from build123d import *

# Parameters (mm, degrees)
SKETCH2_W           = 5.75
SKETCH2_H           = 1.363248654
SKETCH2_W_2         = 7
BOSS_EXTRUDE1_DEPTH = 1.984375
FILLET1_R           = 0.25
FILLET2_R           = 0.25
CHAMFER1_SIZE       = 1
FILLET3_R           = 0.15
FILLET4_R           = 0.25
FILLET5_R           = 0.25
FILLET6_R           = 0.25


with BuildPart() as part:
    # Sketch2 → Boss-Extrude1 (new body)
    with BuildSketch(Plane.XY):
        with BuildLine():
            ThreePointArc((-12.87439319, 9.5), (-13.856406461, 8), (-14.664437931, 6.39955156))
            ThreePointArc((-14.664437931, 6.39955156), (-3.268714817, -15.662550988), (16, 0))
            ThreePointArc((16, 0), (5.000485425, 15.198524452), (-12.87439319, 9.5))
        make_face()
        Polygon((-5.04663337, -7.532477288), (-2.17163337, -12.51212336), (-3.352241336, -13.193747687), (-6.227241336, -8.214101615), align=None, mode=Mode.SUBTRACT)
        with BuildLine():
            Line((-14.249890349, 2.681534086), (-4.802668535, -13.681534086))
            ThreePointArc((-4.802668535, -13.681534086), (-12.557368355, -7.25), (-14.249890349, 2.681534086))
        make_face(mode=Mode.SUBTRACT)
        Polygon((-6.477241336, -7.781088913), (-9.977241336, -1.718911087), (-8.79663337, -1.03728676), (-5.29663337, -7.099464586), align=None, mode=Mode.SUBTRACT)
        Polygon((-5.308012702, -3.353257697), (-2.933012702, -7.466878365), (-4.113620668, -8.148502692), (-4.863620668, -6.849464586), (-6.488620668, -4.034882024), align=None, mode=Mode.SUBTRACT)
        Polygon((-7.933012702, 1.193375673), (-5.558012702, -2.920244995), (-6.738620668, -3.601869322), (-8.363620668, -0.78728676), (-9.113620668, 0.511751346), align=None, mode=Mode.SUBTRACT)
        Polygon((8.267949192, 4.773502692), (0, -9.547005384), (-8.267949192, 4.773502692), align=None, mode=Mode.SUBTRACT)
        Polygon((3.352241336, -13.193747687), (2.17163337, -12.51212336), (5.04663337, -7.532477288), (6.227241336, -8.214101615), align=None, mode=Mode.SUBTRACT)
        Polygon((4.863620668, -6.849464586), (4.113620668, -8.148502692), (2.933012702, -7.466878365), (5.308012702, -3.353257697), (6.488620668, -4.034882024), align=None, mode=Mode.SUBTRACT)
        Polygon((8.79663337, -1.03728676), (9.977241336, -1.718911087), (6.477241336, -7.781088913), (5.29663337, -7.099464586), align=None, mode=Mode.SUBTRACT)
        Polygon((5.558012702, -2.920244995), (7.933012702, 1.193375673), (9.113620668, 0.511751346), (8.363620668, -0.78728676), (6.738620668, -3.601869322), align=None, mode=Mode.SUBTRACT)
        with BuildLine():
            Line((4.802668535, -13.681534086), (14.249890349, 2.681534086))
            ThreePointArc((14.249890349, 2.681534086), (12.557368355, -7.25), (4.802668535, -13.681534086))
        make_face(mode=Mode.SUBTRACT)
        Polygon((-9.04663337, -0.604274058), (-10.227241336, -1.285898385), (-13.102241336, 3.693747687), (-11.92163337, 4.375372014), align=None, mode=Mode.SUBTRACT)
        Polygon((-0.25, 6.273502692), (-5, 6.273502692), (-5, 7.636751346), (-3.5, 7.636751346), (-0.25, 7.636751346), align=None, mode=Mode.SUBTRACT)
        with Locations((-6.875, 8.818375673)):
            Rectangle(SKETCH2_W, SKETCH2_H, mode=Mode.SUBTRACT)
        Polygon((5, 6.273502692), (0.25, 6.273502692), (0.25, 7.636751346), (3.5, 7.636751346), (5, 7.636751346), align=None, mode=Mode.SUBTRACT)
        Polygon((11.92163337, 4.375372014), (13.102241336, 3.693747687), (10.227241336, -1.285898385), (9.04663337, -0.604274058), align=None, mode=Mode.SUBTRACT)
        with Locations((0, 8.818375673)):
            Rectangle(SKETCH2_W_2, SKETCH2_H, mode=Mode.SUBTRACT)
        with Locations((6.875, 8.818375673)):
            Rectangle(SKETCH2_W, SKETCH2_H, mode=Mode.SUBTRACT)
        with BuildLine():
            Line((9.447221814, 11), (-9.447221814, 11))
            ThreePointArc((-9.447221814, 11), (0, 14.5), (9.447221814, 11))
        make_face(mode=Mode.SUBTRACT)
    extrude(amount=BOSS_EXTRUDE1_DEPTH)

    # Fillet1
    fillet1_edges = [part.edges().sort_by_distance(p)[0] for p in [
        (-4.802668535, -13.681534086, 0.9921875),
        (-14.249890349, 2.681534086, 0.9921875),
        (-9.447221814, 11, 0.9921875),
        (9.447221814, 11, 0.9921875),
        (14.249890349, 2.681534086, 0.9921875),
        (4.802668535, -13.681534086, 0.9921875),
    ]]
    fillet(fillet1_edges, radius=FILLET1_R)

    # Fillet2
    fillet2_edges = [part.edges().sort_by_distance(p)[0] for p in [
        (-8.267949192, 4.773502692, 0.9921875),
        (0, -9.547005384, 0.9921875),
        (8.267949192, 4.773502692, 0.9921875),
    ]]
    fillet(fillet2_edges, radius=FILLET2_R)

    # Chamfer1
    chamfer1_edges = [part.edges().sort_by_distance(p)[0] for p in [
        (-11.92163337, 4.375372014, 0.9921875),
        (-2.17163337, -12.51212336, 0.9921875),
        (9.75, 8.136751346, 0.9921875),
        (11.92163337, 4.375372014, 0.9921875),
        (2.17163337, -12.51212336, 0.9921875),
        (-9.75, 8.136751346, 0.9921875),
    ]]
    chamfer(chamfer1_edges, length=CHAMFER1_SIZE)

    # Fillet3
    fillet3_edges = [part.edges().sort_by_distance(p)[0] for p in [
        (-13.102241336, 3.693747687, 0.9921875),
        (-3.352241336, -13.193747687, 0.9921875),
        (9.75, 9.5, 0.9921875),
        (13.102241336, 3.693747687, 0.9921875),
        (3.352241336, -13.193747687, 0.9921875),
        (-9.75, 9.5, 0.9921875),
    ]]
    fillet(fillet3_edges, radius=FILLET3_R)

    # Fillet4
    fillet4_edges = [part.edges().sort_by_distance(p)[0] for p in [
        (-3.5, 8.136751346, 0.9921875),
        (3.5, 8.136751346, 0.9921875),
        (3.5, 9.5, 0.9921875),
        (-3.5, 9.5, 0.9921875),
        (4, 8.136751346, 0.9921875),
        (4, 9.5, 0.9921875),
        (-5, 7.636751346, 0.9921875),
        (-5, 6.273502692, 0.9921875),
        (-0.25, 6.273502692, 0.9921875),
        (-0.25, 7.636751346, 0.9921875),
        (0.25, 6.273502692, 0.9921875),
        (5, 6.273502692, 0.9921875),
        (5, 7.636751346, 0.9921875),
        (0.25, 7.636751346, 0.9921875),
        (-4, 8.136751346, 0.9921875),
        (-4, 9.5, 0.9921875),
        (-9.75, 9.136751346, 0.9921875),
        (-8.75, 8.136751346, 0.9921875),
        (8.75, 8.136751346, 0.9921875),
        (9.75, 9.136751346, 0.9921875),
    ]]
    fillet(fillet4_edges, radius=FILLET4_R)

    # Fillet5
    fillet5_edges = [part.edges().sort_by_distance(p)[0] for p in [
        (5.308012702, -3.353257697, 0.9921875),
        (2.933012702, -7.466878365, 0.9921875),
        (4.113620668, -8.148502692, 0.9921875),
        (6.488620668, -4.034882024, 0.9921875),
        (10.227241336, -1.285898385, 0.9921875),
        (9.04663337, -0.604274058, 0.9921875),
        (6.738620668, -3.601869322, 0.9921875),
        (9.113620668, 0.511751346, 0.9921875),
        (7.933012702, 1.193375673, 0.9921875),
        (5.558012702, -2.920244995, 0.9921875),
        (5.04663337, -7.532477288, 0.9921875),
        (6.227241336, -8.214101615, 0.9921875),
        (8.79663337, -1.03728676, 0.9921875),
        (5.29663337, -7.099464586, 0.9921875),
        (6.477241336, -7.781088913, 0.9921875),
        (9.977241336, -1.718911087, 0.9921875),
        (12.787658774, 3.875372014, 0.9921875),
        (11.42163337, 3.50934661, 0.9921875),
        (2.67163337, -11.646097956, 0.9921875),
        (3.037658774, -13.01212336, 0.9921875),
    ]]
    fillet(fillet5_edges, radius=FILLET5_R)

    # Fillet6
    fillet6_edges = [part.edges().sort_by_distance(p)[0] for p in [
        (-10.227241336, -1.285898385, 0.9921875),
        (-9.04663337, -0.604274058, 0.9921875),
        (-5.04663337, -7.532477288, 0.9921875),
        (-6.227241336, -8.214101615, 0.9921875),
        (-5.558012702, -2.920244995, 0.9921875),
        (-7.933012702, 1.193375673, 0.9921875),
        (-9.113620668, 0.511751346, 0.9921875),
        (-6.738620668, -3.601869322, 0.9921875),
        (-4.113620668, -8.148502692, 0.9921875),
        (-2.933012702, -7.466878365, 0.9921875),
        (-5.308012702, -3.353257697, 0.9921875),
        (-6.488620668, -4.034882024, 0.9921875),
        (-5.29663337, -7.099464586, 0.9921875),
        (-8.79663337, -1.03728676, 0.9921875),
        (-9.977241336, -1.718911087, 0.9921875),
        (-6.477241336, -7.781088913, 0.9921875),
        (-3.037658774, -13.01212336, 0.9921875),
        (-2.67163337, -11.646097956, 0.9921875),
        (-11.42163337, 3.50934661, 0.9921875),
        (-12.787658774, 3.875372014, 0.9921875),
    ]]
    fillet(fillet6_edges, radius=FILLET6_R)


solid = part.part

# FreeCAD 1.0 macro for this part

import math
import FreeCAD as App
import Part
import Sketcher
from FreeCAD import Vector
Q = App.Units.Quantity


def edges_at(feature, points):
    """Names of the edges that pass closest to the given points."""
    edges = feature.Shape.Edges
    near = lambda p: min(range(len(edges)), key=lambda i: edges[i].distToShape(Part.Vertex(*p))[0])
    return sorted({f"Edge{near(p) + 1}" for p in points})


def add_polygon(sketch, points):
    """Adds a closed chain of lines whose ends are joined by coincident constraints."""
    first, n = sketch.GeometryCount, len(points)
    for a, b in zip(points, points[1:] + points[:1]):
        sketch.addGeometry(Part.LineSegment(App.Vector(*a, 0), App.Vector(*b, 0)), False)
    for i in range(n):
        sketch.addConstraint(Sketcher.Constraint("Coincident", first + i, 2, first + (i + 1) % n, 1))

doc = App.newDocument("Part")
body = doc.addObject("PartDesign::Body", "Body")

# Sketch on XY plane
sketch1 = body.newObject("Sketcher::SketchObject", "Sketch")
sketch1.AttachmentSupport = (doc.getObject("XY_Plane"), [""])
sketch1.MapMode = "FlatFace"
sketch1.addGeometry(Part.ArcOfCircle(Part.Circle(Vector(0, 0, 0), Vector(0, 0, 1), 16), math.radians(143.58), math.radians(156.42)), False)  # 0
sketch1.addGeometry(Part.ArcOfCircle(Part.Circle(Vector(0, 0, 0), Vector(0, 0, 1), 16), math.radians(156), math.radians(360)), False)  # 1
sketch1.addGeometry(Part.ArcOfCircle(Part.Circle(Vector(0, 0, 0), Vector(0, 0, 1), 16), math.radians(0), math.radians(144)), False)  # 2
add_polygon(sketch1, [(-6.2, -8.2), (-5, -7.5), (-2.2, -12.5), (-3.4, -13.2)])  # lines 3-6
sketch1.addGeometry(Part.ArcOfCircle(Part.Circle(Vector(0, 0, 0), Vector(0, 0, 1), 14.5), math.radians(169), math.radians(251)), False)  # 7
sketch1.addGeometry(Part.LineSegment(Vector(-14.2, 2.7, 0), Vector(-4.8, -13.7, 0)), False)  # 8
add_polygon(sketch1, [(-5.3, -7.1), (-6.5, -7.8), (-10, -1.7), (-8.8, -1)])  # lines 9-12
add_polygon(sketch1, [(-9.1, 0.5), (-7.9, 1.2), (-5.6, -2.9), (-6.7, -3.6), (-8.4, -0.8)])  # lines 13-17
add_polygon(sketch1, [(-6.5, -4), (-5.3, -3.4), (-2.9, -7.5), (-4.1, -8.1), (-4.9, -6.8)])  # lines 18-22
add_polygon(sketch1, [(-8.3, 4.8), (8.3, 4.8), (0, -9.5)])  # lines 23-25
add_polygon(sketch1, [(6.2, -8.2), (3.4, -13.2), (2.2, -12.5), (5, -7.5)])  # lines 26-29
add_polygon(sketch1, [(6.5, -4), (4.9, -6.8), (4.1, -8.1), (2.9, -7.5), (5.3, -3.4)])  # lines 30-34
sketch1.addGeometry(Part.ArcOfCircle(Part.Circle(Vector(0, 0, 0), Vector(0, 0, 1), 14.5), math.radians(-71), math.radians(11)), False)  # 35
sketch1.addGeometry(Part.LineSegment(Vector(4.8, -13.7, 0), Vector(14.2, 2.7, 0)), False)  # 36
add_polygon(sketch1, [(5.3, -7.1), (8.8, -1), (10, -1.7), (6.5, -7.8)])  # lines 37-40
add_polygon(sketch1, [(6.7, -3.6), (5.6, -2.9), (7.9, 1.2), (9.1, 0.5), (8.4, -0.8)])  # lines 41-45
add_polygon(sketch1, [(-11.9, 4.4), (-9, -0.6), (-10.2, -1.3), (-13.1, 3.7)])  # lines 46-49
add_polygon(sketch1, [(-0.2, 7.6), (-0.2, 6.3), (-5, 6.3), (-5, 7.6)])  # lines 50-53
add_polygon(sketch1, [(-4, 8.1), (-9.8, 8.1), (-9.8, 9.5), (-4, 9.5)])  # lines 54-57
add_polygon(sketch1, [(3.5, 8.1), (-3.5, 8.1), (-3.5, 9.5), (3.5, 9.5)])  # lines 58-61
add_polygon(sketch1, [(5, 7.6), (5, 6.3), (0.2, 6.3), (0.2, 7.6)])  # lines 62-65
add_polygon(sketch1, [(9, -0.6), (11.9, 4.4), (13.1, 3.7), (10.2, -1.3)])  # lines 66-69
add_polygon(sketch1, [(9.8, 8.1), (4, 8.1), (4, 9.5), (9.8, 9.5)])  # lines 70-73
sketch1.addGeometry(Part.ArcOfCircle(Part.Circle(Vector(0, 0, 0), Vector(0, 0, 1), 14.5), math.radians(49), math.radians(131)), False)  # 74
sketch1.addGeometry(Part.LineSegment(Vector(9.4, 11, 0), Vector(-9.4, 11, 0)), False)  # 75
sketch1.addConstraint(Sketcher.Constraint("Tangent", 0, 2, 1, 1))
sketch1.addConstraint(Sketcher.Constraint("Tangent", 1, 2, 2, 1))
sketch1.addConstraint(Sketcher.Constraint("Tangent", 2, 2, 0, 1))
sketch1.addConstraint(Sketcher.Constraint("Coincident", 7, 1, 8, 1))
sketch1.addConstraint(Sketcher.Constraint("Coincident", 8, 2, 7, 2))
sketch1.addConstraint(Sketcher.Constraint("Coincident", 35, 1, 36, 1))
sketch1.addConstraint(Sketcher.Constraint("Coincident", 36, 2, 35, 2))
sketch1.addConstraint(Sketcher.Constraint("Coincident", 74, 1, 75, 1))
sketch1.addConstraint(Sketcher.Constraint("Coincident", 75, 2, 74, 2))
sketch1.addConstraint(Sketcher.Constraint("Horizontal", 23))
sketch1.addConstraint(Sketcher.Constraint("Vertical", 50))
sketch1.addConstraint(Sketcher.Constraint("Horizontal", 51))
sketch1.addConstraint(Sketcher.Constraint("Vertical", 52))
sketch1.addConstraint(Sketcher.Constraint("Horizontal", 53))
sketch1.addConstraint(Sketcher.Constraint("Horizontal", 54))
sketch1.addConstraint(Sketcher.Constraint("Vertical", 55))
sketch1.addConstraint(Sketcher.Constraint("Horizontal", 56))
sketch1.addConstraint(Sketcher.Constraint("Vertical", 57))
sketch1.addConstraint(Sketcher.Constraint("Horizontal", 58))
sketch1.addConstraint(Sketcher.Constraint("Vertical", 59))
sketch1.addConstraint(Sketcher.Constraint("Horizontal", 60))
sketch1.addConstraint(Sketcher.Constraint("Vertical", 61))
sketch1.addConstraint(Sketcher.Constraint("Vertical", 62))
sketch1.addConstraint(Sketcher.Constraint("Horizontal", 63))
sketch1.addConstraint(Sketcher.Constraint("Vertical", 64))
sketch1.addConstraint(Sketcher.Constraint("Horizontal", 65))
sketch1.addConstraint(Sketcher.Constraint("Horizontal", 70))
sketch1.addConstraint(Sketcher.Constraint("Vertical", 71))
sketch1.addConstraint(Sketcher.Constraint("Horizontal", 72))
sketch1.addConstraint(Sketcher.Constraint("Vertical", 73))
sketch1.addConstraint(Sketcher.Constraint("Horizontal", 75))
sketch1.addConstraint(Sketcher.Constraint("Coincident", 0, 3, -1, 1))
sketch1.addConstraint(Sketcher.Constraint("Coincident", 7, 3, -1, 1))
sketch1.addConstraint(Sketcher.Constraint("Coincident", 35, 3, -1, 1))
sketch1.addConstraint(Sketcher.Constraint("Coincident", 74, 3, -1, 1))
sketch1.addConstraint(Sketcher.Constraint("Equal", 7, 35))
sketch1.addConstraint(Sketcher.Constraint("Equal", 35, 74))
sketch1.addConstraint(Sketcher.Constraint("Symmetric", 5, 2, 26, 2, -2))
sketch1.addConstraint(Sketcher.Constraint("Symmetric", 4, 2, 27, 2, -2))
sketch1.addConstraint(Sketcher.Constraint("Symmetric", 3, 2, 28, 2, -2))
sketch1.addConstraint(Sketcher.Constraint("Symmetric", 6, 2, 29, 2, -2))
sketch1.addConstraint(Sketcher.Constraint("Symmetric", 21, 2, 30, 2, -2))
sketch1.addConstraint(Sketcher.Constraint("Symmetric", 20, 2, 31, 2, -2))
sketch1.addConstraint(Sketcher.Constraint("Symmetric", 19, 2, 32, 2, -2))
sketch1.addConstraint(Sketcher.Constraint("Symmetric", 18, 2, 33, 2, -2))
sketch1.addConstraint(Sketcher.Constraint("Symmetric", 22, 2, 34, 2, -2))
sketch1.addConstraint(Sketcher.Constraint("Symmetric", 11, 2, 37, 2, -2))
sketch1.addConstraint(Sketcher.Constraint("Symmetric", 10, 2, 38, 2, -2))
sketch1.addConstraint(Sketcher.Constraint("Symmetric", 9, 2, 39, 2, -2))
sketch1.addConstraint(Sketcher.Constraint("Symmetric", 12, 2, 40, 2, -2))
sketch1.addConstraint(Sketcher.Constraint("Symmetric", 14, 2, 41, 2, -2))
sketch1.addConstraint(Sketcher.Constraint("Symmetric", 13, 2, 42, 2, -2))
sketch1.addConstraint(Sketcher.Constraint("Symmetric", 17, 2, 43, 2, -2))
sketch1.addConstraint(Sketcher.Constraint("Symmetric", 16, 2, 44, 2, -2))
sketch1.addConstraint(Sketcher.Constraint("Symmetric", 15, 2, 45, 2, -2))
sketch1.addConstraint(Sketcher.Constraint("Symmetric", 51, 2, 62, 2, -2))
sketch1.addConstraint(Sketcher.Constraint("Symmetric", 53, 2, 64, 2, -2))
sketch1.addConstraint(Sketcher.Constraint("Symmetric", 49, 2, 66, 2, -2))
sketch1.addConstraint(Sketcher.Constraint("Symmetric", 48, 2, 67, 2, -2))
sketch1.addConstraint(Sketcher.Constraint("Symmetric", 47, 2, 68, 2, -2))
sketch1.addConstraint(Sketcher.Constraint("Symmetric", 46, 2, 69, 2, -2))
sketch1.addConstraint(Sketcher.Constraint("Symmetric", 57, 2, 70, 2, -2))
sketch1.addConstraint(Sketcher.Constraint("Symmetric", 55, 2, 72, 2, -2))
sketch1.addConstraint(Sketcher.Constraint("PointOnObject", 1, 2, -1))
sketch1.addConstraint(Sketcher.Constraint("PointOnObject", 24, 2, -2))
sketch1.addConstraint(Sketcher.Constraint("Perpendicular", 3, 4))
sketch1.addConstraint(Sketcher.Constraint("Perpendicular", 4, 5))
sketch1.addConstraint(Sketcher.Constraint("Perpendicular", 5, 6))
sketch1.addConstraint(Sketcher.Constraint("Parallel", 6, 8))
sketch1.addConstraint(Sketcher.Constraint("Perpendicular", 8, 9))
sketch1.addConstraint(Sketcher.Constraint("Perpendicular", 9, 10))
sketch1.addConstraint(Sketcher.Constraint("Perpendicular", 10, 11))
sketch1.addConstraint(Sketcher.Constraint("Perpendicular", 11, 12))
sketch1.addConstraint(Sketcher.Constraint("Perpendicular", 12, 13))
sketch1.addConstraint(Sketcher.Constraint("Perpendicular", 13, 14))
sketch1.addConstraint(Sketcher.Constraint("Perpendicular", 14, 15))
sketch1.addConstraint(Sketcher.Constraint("Perpendicular", 15, 16))
sketch1.addConstraint(Sketcher.Constraint("Parallel", 16, 17))
sketch1.addConstraint(Sketcher.Constraint("Perpendicular", 17, 18))
sketch1.addConstraint(Sketcher.Constraint("Perpendicular", 18, 19))
sketch1.addConstraint(Sketcher.Constraint("Perpendicular", 19, 20))
sketch1.addConstraint(Sketcher.Constraint("Perpendicular", 20, 21))
sketch1.addConstraint(Sketcher.Constraint("Parallel", 21, 22))
sketch1.addConstraint(Sketcher.Constraint("Parallel", 22, 25))
sketch1.addConstraint(Sketcher.Constraint("Parallel", 24, 26))
sketch1.addConstraint(Sketcher.Constraint("Perpendicular", 34, 36))
sketch1.addConstraint(Sketcher.Constraint("Parallel", 25, 46))
sketch1.addConstraint(Sketcher.Constraint("Perpendicular", 46, 47))
sketch1.addConstraint(Sketcher.Constraint("Perpendicular", 47, 48))
sketch1.addConstraint(Sketcher.Constraint("Perpendicular", 48, 49))
sketch1.addConstraint(Sketcher.Constraint("Horizontal", 8, 2, 35, 1))
sketch1.addConstraint(Sketcher.Constraint("Horizontal", 2, 2, 55, 2))
sketch1.addConstraint(Sketcher.Constraint("Horizontal", 57, 2, 58, 2))
sketch1.addConstraint(Sketcher.Constraint("Horizontal", 56, 2, 59, 2))
sketch1.addConstraint(Sketcher.Constraint("Equal", 52, 55))
sketch1.addConstraint(Sketcher.Constraint("Equal", 5, 9))
sketch1.addConstraint(Sketcher.Constraint("Equal", 11, 13))
sketch1.addConstraint(Sketcher.Constraint("Equal", 15, 18))
sketch1.addConstraint(Sketcher.Constraint("Equal", 14, 19))
sketch1.addConstraint(Sketcher.Constraint("Equal", 17, 21))
sketch1.addConstraint(Sketcher.Constraint("Equal", 28, 46))
sketch1.addConstraint(Sketcher.Constraint("Equal", 43, 47))
sketch1.addConstraint(Sketcher.Constraint("Radius", 0, Q("16 mm")))
sketch1.addConstraint(Sketcher.Constraint("Radius", 7, Q("14.5 mm")))
sketch1.addConstraint(Sketcher.Constraint("DistanceX", 58, 2, 58, 1, Q("7 mm")))
sketch1.addConstraint(Sketcher.Constraint("Angle", 3, Q("30 deg")))
sketch1.addConstraint(Sketcher.Constraint("Distance", 10, Q("7 mm")))
sketch1.addConstraint(Sketcher.Constraint("DistanceX", 51, 2, -1, 1, Q("5 mm")))
sketch1.addConstraint(Sketcher.Constraint("DistanceX", 56, 2, -1, 1, Q("4 mm")))
sketch1.addConstraint(Sketcher.Constraint("DistanceY", -1, 1, 74, 1, Q("11 mm")))
sketch1.addConstraint(Sketcher.Constraint("Distance", 17, Q("1.5 mm")))
sketch1.addConstraint(Sketcher.Constraint("DistanceX", 51, 2, 51, 1, Q("4.75 mm")))
sketch1.addConstraint(Sketcher.Constraint("DistanceX", 54, 2, 54, 1, Q("5.75 mm")))
sketch1.addConstraint(Sketcher.Constraint("DistanceY", -1, 1, 2, 2, Q("9.5 mm")))
sketch1.addConstraint(Sketcher.Constraint("DistanceX", 58, 2, -1, 1, Q("3.5 mm")))
sketch1.addConstraint(Sketcher.Constraint("Distance", 4, Q("5.75 mm")))
sketch1.addConstraint(Sketcher.Constraint("Distance", 14, Q("4.75 mm")))
sketch1.addConstraint(Sketcher.Constraint("DistanceX", 23, 1, 23, 2, Q("16.535898 mm")))
sketch1.addConstraint(Sketcher.Constraint("DistanceY", 50, 2, 50, 1, Q("1.363249 mm")))
sketch1.addConstraint(Sketcher.Constraint("DistanceY", 6, 2, -1, 1, Q("8.214102 mm")))
sketch1.addConstraint(Sketcher.Constraint("DistanceY", 47, 2, -1, 1, Q("1.285898 mm")))
sketch1.addConstraint(Sketcher.Constraint("Distance", 3, Q("1.363249 mm")))
sketch1.addConstraint(Sketcher.Constraint("DistanceY", -1, 1, 0, 2, Q("6.399552 mm")))
sketch1.addConstraint(Sketcher.Constraint("DistanceX", 5, 2, -1, 1, Q("3.352241 mm")))
sketch1.addConstraint(Sketcher.Constraint("DistanceX", 7, 1, -1, 1, Q("14.24989 mm")))
sketch1.addConstraint(Sketcher.Constraint("DistanceX", 9, 2, -1, 1, Q("6.477241 mm")))
sketch1.addConstraint(Sketcher.Constraint("DistanceY", 9, 2, -1, 1, Q("7.781089 mm")))
sketch1.addConstraint(Sketcher.Constraint("DistanceX", 15, 2, -1, 1, Q("6.738621 mm")))
sketch1.addConstraint(Sketcher.Constraint("DistanceY", 15, 2, -1, 1, Q("3.601869 mm")))
sketch1.addConstraint(Sketcher.Constraint("DistanceY", 19, 2, -1, 1, Q("7.466878 mm")))
sketch1.addConstraint(Sketcher.Constraint("DistanceX", 20, 2, -1, 1, Q("4.113621 mm")))
sketch1.addConstraint(Sketcher.Constraint("DistanceX", 47, 2, -1, 1, Q("10.227241 mm")))
sketch1.addConstraint(Sketcher.Constraint("DistanceY", -1, 1, 52, 2, Q("7.636751 mm")))
sketch1.addConstraint(Sketcher.Constraint("DistanceY", -1, 1, 23, 2, Q("4.773503 mm")))
pad1 = body.newObject("PartDesign::Pad", "Pad")
pad1.Profile = sketch1
pad1.Length = 1.984375
doc.recompute()

fillet = body.newObject("PartDesign::Fillet", "Fillet")
fillet.Base = (pad1, edges_at(pad1, [
    (-4.803, -13.682, 0.992),
    (-14.25, 2.682, 0.992),
    (-9.447, 11, 0.992),
    (9.447, 11, 0.992),
    (14.25, 2.682, 0.992),
    (4.803, -13.682, 0.992),
]))
fillet.Radius = 0.25
doc.recompute()

fillet2 = body.newObject("PartDesign::Fillet", "Fillet001")
fillet2.Base = (fillet, edges_at(fillet, [(-8.268, 4.774, 0.992), (0, -9.547, 0.992), (8.268, 4.774, 0.992)]))
fillet2.Radius = 0.25
doc.recompute()

chamfer = body.newObject("PartDesign::Chamfer", "Chamfer")
chamfer.Base = (fillet2, edges_at(fillet2, [
    (-11.922, 4.375, 0.992),
    (-2.172, -12.512, 0.992),
    (9.75, 8.137, 0.992),
    (11.922, 4.375, 0.992),
    (2.172, -12.512, 0.992),
    (-9.75, 8.137, 0.992),
]))
chamfer.Size = 1
doc.recompute()

fillet3 = body.newObject("PartDesign::Fillet", "Fillet002")
fillet3.Base = (chamfer, edges_at(chamfer, [
    (-13.102, 3.694, 0.992),
    (-3.352, -13.194, 0.992),
    (9.75, 9.5, 0.992),
    (13.102, 3.694, 0.992),
    (3.352, -13.194, 0.992),
    (-9.75, 9.5, 0.992),
]))
fillet3.Radius = 0.15
doc.recompute()

fillet4 = body.newObject("PartDesign::Fillet", "Fillet003")
fillet4.Base = (fillet3, edges_at(fillet3, [
    (-3.5, 8.137, 0.992),
    (3.5, 8.137, 0.992),
    (3.5, 9.5, 0.992),
    (-3.5, 9.5, 0.992),
    (4, 8.137, 0.992),
    (4, 9.5, 0.992),
    (-5, 7.637, 0.992),
    (-5, 6.274, 0.992),
    (-0.25, 6.274, 0.992),
    (-0.25, 7.637, 0.992),
    (0.25, 6.274, 0.992),
    (5, 6.274, 0.992),
    (5, 7.637, 0.992),
    (0.25, 7.637, 0.992),
    (-4, 8.137, 0.992),
    (-4, 9.5, 0.992),
    (-9.75, 9.137, 0.992),
    (-8.75, 8.137, 0.992),
    (8.75, 8.137, 0.992),
    (9.75, 9.137, 0.992),
]))
fillet4.Radius = 0.25
doc.recompute()

fillet5 = body.newObject("PartDesign::Fillet", "Fillet004")
fillet5.Base = (fillet4, edges_at(fillet4, [
    (5.308, -3.353, 0.992),
    (2.933, -7.467, 0.992),
    (4.114, -8.149, 0.992),
    (6.489, -4.035, 0.992),
    (10.227, -1.286, 0.992),
    (9.047, -0.604, 0.992),
    (6.739, -3.602, 0.992),
    (9.114, 0.512, 0.992),
    (7.933, 1.193, 0.992),
    (5.558, -2.92, 0.992),
    (5.047, -7.532, 0.992),
    (6.227, -8.214, 0.992),
    (8.797, -1.037, 0.992),
    (5.297, -7.099, 0.992),
    (6.477, -7.781, 0.992),
    (9.977, -1.719, 0.992),
    (12.788, 3.875, 0.992),
    (11.422, 3.509, 0.992),
    (2.672, -11.646, 0.992),
    (3.038, -13.012, 0.992),
]))
fillet5.Radius = 0.25
doc.recompute()

fillet6 = body.newObject("PartDesign::Fillet", "Fillet005")
fillet6.Base = (fillet5, edges_at(fillet5, [
    (-10.227, -1.286, 0.992),
    (-9.047, -0.604, 0.992),
    (-5.047, -7.532, 0.992),
    (-6.227, -8.214, 0.992),
    (-5.558, -2.92, 0.992),
    (-7.933, 1.193, 0.992),
    (-9.114, 0.512, 0.992),
    (-6.739, -3.602, 0.992),
    (-4.114, -8.149, 0.992),
    (-2.933, -7.467, 0.992),
    (-5.308, -3.353, 0.992),
    (-6.489, -4.035, 0.992),
    (-5.297, -7.099, 0.992),
    (-8.797, -1.037, 0.992),
    (-9.977, -1.719, 0.992),
    (-6.477, -7.781, 0.992),
    (-3.038, -13.012, 0.992),
    (-2.672, -11.646, 0.992),
    (-11.422, 3.509, 0.992),
    (-12.788, 3.875, 0.992),
]))
fillet6.Radius = 0.25

doc.recompute()
